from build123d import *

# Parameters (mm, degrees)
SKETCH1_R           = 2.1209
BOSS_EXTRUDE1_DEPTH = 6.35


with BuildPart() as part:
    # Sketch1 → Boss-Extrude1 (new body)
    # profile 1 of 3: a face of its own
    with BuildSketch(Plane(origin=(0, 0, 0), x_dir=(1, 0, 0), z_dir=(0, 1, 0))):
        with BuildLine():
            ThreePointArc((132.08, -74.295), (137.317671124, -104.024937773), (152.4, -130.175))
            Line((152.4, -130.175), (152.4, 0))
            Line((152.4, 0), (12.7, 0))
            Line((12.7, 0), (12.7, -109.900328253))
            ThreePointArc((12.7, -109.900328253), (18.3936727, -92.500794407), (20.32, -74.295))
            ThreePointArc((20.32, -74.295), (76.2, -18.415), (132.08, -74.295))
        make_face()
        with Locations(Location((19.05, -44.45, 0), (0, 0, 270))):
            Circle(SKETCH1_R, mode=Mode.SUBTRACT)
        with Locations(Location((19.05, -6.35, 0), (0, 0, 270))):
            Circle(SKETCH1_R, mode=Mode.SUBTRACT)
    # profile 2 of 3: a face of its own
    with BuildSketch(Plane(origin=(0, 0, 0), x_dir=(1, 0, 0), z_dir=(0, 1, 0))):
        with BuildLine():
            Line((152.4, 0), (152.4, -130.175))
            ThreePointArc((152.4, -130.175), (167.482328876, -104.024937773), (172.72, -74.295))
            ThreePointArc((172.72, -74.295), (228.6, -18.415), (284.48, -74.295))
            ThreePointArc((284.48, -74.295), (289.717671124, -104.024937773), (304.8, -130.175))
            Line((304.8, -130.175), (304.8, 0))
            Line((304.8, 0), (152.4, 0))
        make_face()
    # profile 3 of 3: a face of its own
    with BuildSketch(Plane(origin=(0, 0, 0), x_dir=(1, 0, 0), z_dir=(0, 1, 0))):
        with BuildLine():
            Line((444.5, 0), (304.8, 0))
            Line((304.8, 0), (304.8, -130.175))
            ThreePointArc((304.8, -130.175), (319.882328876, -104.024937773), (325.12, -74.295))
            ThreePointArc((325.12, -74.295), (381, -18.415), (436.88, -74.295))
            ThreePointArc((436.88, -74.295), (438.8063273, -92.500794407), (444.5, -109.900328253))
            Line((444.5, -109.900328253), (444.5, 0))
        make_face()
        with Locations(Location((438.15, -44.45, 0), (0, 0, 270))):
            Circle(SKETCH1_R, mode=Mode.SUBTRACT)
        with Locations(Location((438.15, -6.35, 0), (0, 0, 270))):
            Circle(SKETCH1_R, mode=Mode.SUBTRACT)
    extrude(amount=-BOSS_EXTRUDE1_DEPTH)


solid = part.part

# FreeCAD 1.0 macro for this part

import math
import FreeCAD as App
import Part
import Sketcher
Q = App.Units.Quantity

doc = App.newDocument("Part")
params = doc.addObject("Spreadsheet::Sheet", "Params")
for row, (alias, value) in enumerate([
    ("sketch1_radius", "2.2 in"),
    ("sketch1_width", "17 in"),
    ("sketch1_diameter", "0.167 in"),
    ("sketch1_radius2", "3.425 in"),
    ("pad1_length", "0.25 in"),
], start=1):
    params.set(f"A{row}", alias)
    params.set(f"B{row}", "=" + value)
    params.setAlias(f"B{row}", alias)

body = doc.addObject("PartDesign::Body", "Body")

# Sketch on XZ plane
sketch1 = body.newObject("Sketcher::SketchObject", "Sketch")
sketch1.AttachmentSupport = (doc.getObject("XZ_Plane"), [""])
sketch1.MapMode = "FlatFace"
sketch1.addGeometry([
    Part.ArcOfCircle(Part.Circle(App.Vector(219.1, 74.3, 0), App.Vector(0, 0, 1), 87), math.radians(140), math.radians(180)),  # 0
    Part.ArcOfCircle(Part.Circle(App.Vector(85.7, 74.3, 0), App.Vector(0, 0, 1), 87), math.radians(0), math.radians(40)),  # 1
    Part.ArcOfCircle(Part.Circle(App.Vector(228.6, 74.3, 0), App.Vector(0, 0, 1), 55.9), math.radians(180), math.radians(360)),  # 2
    Part.ArcOfCircle(Part.Circle(App.Vector(371.5, 74.3, 0), App.Vector(0, 0, 1), 87), math.radians(140), math.radians(180)),  # 3
    Part.ArcOfCircle(Part.Circle(App.Vector(238.1, 74.3, 0), App.Vector(0, 0, 1), 87), math.radians(0), math.radians(40)),  # 4
    Part.ArcOfCircle(Part.Circle(App.Vector(381, 74.3, 0), App.Vector(0, 0, 1), 55.9), math.radians(180), math.radians(360)),  # 5
    Part.ArcOfCircle(Part.Circle(App.Vector(523.9, 74.3, 0), App.Vector(0, 0, 1), 87), math.radians(156), math.radians(180)),  # 6
    Part.LineSegment(App.Vector(444.5, 109.9, 0), App.Vector(444.5, 0, 0)),  # 7
    Part.LineSegment(App.Vector(444.5, 0, 0), App.Vector(12.7, 0, 0)),  # 8
    Part.LineSegment(App.Vector(12.7, 0, 0), App.Vector(12.7, 109.9, 0)),  # 9
    Part.ArcOfCircle(Part.Circle(App.Vector(-66.7, 74.3, 0), App.Vector(0, 0, 1), 87), math.radians(0), math.radians(24)),  # 10
    Part.ArcOfCircle(Part.Circle(App.Vector(76.2, 74.3, 0), App.Vector(0, 0, 1), 55.9), math.radians(180), math.radians(360)),  # 11
    Part.Circle(App.Vector(19.1, 44.5, 0), App.Vector(0, 0, 1), 2.1),  # 12
    Part.Circle(App.Vector(19.1, 6.3, 0), App.Vector(0, 0, 1), 2.1),  # 13
    Part.Circle(App.Vector(438.1, 6.3, 0), App.Vector(0, 0, 1), 2.1),  # 14
    Part.Circle(App.Vector(438.1, 44.5, 0), App.Vector(0, 0, 1), 2.1),  # 15
], False)
sketch1.addConstraint([
    Sketcher.Constraint("Coincident", 0, 1, 1, 2),
    Sketcher.Constraint("Tangent", 1, 1, 2, 1),
    Sketcher.Constraint("Tangent", 2, 2, 3, 2),
    Sketcher.Constraint("Coincident", 3, 1, 4, 2),
    Sketcher.Constraint("Tangent", 4, 1, 5, 1),
    Sketcher.Constraint("Tangent", 5, 2, 6, 2),
    Sketcher.Constraint("Coincident", 6, 1, 7, 1),
    Sketcher.Constraint("Coincident", 7, 2, 8, 1),
    Sketcher.Constraint("Coincident", 8, 2, 9, 1),
    Sketcher.Constraint("Coincident", 9, 2, 10, 2),
    Sketcher.Constraint("Tangent", 10, 1, 11, 1),
    Sketcher.Constraint("Tangent", 11, 2, 0, 2),
    Sketcher.Constraint("Vertical", 7),
    Sketcher.Constraint("Horizontal", 8),
    Sketcher.Constraint("Vertical", 9),
    Sketcher.Constraint("Equal", 0, 1),
    Sketcher.Constraint("Equal", 1, 3),
    Sketcher.Constraint("Equal", 3, 4),
    Sketcher.Constraint("Equal", 2, 5),
    Sketcher.Constraint("Equal", 4, 6),
    Sketcher.Constraint("Equal", 6, 10),
    Sketcher.Constraint("Equal", 5, 11),
    Sketcher.Constraint("Equal", 12, 13),
    Sketcher.Constraint("Equal", 13, 14),
    Sketcher.Constraint("Equal", 14, 15),
    Sketcher.Constraint("PointOnObject", 7, 2, -1),
    Sketcher.Constraint("Horizontal", 0, 3, 1, 3),
    Sketcher.Constraint("Horizontal", 1, 3, 2, 3),
    Sketcher.Constraint("Horizontal", 2, 3, 3, 3),
    Sketcher.Constraint("Horizontal", 3, 3, 4, 3),
    Sketcher.Constraint("Horizontal", 4, 3, 5, 3),
    Sketcher.Constraint("Horizontal", 5, 3, 6, 3),
    Sketcher.Constraint("Horizontal", 6, 3, 10, 3),
    Sketcher.Constraint("Horizontal", 10, 3, 11, 3),
    Sketcher.Constraint("Horizontal", 13, 3, 14, 3),
    Sketcher.Constraint("Horizontal", 12, 3, 15, 3),
    Sketcher.Constraint("Horizontal", 0, 1, 3, 1),
    Sketcher.Constraint("Horizontal", 6, 1, 9, 2),
    Sketcher.Constraint("Vertical", 12, 3, 13, 3),
    Sketcher.Constraint("Vertical", 14, 3, 15, 3),
    Sketcher.Constraint("Radius", 2, Q("2.2 in")),
    Sketcher.Constraint("DistanceX", 8, 2, 8, 1, Q("17 in")),
    Sketcher.Constraint("Diameter", 12, Q("0.167 in")),
    Sketcher.Constraint("DistanceX", -1, 1, 2, 3, Q("9 in")),
    Sketcher.Constraint("DistanceX", -1, 1, 5, 3, Q("15 in")),
    Sketcher.Constraint("Radius", 0, Q("3.425 in")),
    Sketcher.Constraint("DistanceY", 13, 3, 12, 3, Q("1.5 in")),
    Sketcher.Constraint("DistanceX", -1, 1, 12, 3, Q("0.75 in")),
    Sketcher.Constraint("DistanceY", -1, 1, 12, 3, Q("1.75 in")),
    Sketcher.Constraint("DistanceX", -1, 1, 14, 3, Q("17.25 in")),
    Sketcher.Constraint("DistanceY", -1, 1, 0, 3, Q("2.925 in")),
])
sketch1.setExpression("Constraints[40]", "Params.sketch1_radius")
sketch1.setExpression("Constraints[41]", "Params.sketch1_width")
sketch1.setExpression("Constraints[42]", "Params.sketch1_diameter")
sketch1.setExpression("Constraints[45]", "Params.sketch1_radius2")
pad1 = body.newObject("PartDesign::Pad", "Pad")
pad1.Profile = sketch1
pad1.setExpression("Length", "Params.pad1_length")

doc.recompute()
